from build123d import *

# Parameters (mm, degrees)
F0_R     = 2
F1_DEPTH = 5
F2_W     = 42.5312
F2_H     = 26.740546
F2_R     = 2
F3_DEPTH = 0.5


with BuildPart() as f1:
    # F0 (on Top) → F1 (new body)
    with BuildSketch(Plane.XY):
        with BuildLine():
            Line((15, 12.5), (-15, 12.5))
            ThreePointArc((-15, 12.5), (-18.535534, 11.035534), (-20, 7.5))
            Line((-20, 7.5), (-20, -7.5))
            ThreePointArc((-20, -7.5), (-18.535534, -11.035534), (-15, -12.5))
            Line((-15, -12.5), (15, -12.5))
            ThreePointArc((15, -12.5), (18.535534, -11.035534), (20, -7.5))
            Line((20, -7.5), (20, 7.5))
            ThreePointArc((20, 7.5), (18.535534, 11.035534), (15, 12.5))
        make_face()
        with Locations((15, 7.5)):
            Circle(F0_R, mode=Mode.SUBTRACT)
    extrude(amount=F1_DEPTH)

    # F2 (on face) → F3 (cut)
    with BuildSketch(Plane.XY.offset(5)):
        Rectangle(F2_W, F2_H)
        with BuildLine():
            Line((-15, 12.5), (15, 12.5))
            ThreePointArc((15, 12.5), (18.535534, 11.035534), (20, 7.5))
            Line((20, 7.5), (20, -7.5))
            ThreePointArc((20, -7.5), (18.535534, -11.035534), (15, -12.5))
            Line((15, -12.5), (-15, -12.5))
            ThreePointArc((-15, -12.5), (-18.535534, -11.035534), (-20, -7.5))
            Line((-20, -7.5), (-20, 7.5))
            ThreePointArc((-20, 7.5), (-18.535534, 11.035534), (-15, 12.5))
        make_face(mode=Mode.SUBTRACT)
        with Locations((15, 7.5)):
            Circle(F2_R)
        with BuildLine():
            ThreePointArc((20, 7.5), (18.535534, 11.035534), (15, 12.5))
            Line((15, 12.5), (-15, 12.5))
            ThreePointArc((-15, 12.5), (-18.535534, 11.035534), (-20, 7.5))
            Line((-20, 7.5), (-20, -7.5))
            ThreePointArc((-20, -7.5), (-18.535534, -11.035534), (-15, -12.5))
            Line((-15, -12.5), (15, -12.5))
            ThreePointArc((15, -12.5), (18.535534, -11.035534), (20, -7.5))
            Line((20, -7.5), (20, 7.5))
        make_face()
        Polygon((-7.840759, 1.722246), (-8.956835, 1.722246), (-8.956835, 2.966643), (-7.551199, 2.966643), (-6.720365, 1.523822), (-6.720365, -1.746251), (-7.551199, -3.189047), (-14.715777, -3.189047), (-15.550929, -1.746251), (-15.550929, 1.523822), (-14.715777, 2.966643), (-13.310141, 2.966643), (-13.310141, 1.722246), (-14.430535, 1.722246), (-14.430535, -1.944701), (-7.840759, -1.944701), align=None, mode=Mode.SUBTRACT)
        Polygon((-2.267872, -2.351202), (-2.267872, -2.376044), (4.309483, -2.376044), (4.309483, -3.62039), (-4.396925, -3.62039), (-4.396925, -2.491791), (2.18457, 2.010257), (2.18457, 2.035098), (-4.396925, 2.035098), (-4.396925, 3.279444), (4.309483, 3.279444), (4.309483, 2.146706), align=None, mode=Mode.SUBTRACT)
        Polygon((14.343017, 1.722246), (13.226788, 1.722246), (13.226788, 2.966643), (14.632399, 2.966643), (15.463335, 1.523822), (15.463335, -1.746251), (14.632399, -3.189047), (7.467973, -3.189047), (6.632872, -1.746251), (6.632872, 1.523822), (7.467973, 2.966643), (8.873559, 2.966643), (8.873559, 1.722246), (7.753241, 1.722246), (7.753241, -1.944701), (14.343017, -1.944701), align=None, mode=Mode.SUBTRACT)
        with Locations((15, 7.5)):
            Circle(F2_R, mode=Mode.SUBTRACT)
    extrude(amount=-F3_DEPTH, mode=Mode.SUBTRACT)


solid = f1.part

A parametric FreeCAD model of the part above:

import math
import FreeCAD as App
import Part
import Sketcher
from FreeCAD import Vector
Q = App.Units.Quantity

doc = App.newDocument("Part")
params = doc.addObject("Spreadsheet::Sheet", "Params")
for row, (alias, value) in enumerate([
    ("sketch1_diameter", "4 mm"),
    ("sketch1_radius", "5 mm"),
    ("sketch1_width", "30 mm"),
    ("sketch1_height", "15 mm"),
    ("pad1_length", "5 mm"),
    ("sketch2_diameter", "4 mm"),
    ("pocket1_length", "0.5 mm"),
], start=1):
    params.set(f"A{row}", alias)
    params.set(f"B{row}", "=" + value)
    params.setAlias(f"B{row}", alias)

body = doc.addObject("PartDesign::Body", "Body")

# Sketch on XY plane
sketch1 = body.newObject("Sketcher::SketchObject", "Sketch")
sketch1.AttachmentSupport = (doc.getObject("XY_Plane"), [""])
sketch1.MapMode = "FlatFace"
sketch1.addGeometry([
    Part.LineSegment(Vector(15, 12.5, 0), Vector(-15, 12.5, 0)),  # 0
    Part.ArcOfCircle(Part.Circle(Vector(-15, 7.5, 0), Vector(0, 0, 1), 5), math.radians(90), math.radians(180)),  # 1
    Part.LineSegment(Vector(-20, 7.5, 0), Vector(-20, -7.5, 0)),  # 2
    Part.ArcOfCircle(Part.Circle(Vector(-15, -7.5, 0), Vector(0, 0, 1), 5), math.radians(180), math.radians(270)),  # 3
    Part.LineSegment(Vector(-15, -12.5, 0), Vector(15, -12.5, 0)),  # 4
    Part.ArcOfCircle(Part.Circle(Vector(15, -7.5, 0), Vector(0, 0, 1), 5), math.radians(-90), math.radians(0)),  # 5
    Part.LineSegment(Vector(20, -7.5, 0), Vector(20, 7.5, 0)),  # 6
    Part.ArcOfCircle(Part.Circle(Vector(15, 7.5, 0), Vector(0, 0, 1), 5), math.radians(0), math.radians(90)),  # 7
    Part.Circle(Vector(15, 7.5, 0), Vector(0, 0, 1), 2),  # 8
], False)
sketch1.addConstraint([
    Sketcher.Constraint("Tangent", 0, 2, 1, 1),
    Sketcher.Constraint("Tangent", 1, 2, 2, 1),
    Sketcher.Constraint("Tangent", 2, 2, 3, 1),
    Sketcher.Constraint("Tangent", 3, 2, 4, 1),
    Sketcher.Constraint("Tangent", 4, 2, 5, 1),
    Sketcher.Constraint("Tangent", 5, 2, 6, 1),
    Sketcher.Constraint("Tangent", 6, 2, 7, 1),
    Sketcher.Constraint("Tangent", 7, 2, 0, 1),
    Sketcher.Constraint("Horizontal", 0),
    Sketcher.Constraint("Vertical", 2),
    Sketcher.Constraint("Horizontal", 4),
    Sketcher.Constraint("Vertical", 6),
    Sketcher.Constraint("Coincident", 8, 3, 7, 3),
    Sketcher.Constraint("Equal", 1, 3),
    Sketcher.Constraint("Equal", 3, 5),
    Sketcher.Constraint("Equal", 5, 7),
    Sketcher.Constraint("Symmetric", 1, 3, 5, 3, -1, 1),
    Sketcher.Constraint("Diameter", 8, Q("4 mm")),
    Sketcher.Constraint("Radius", 1, Q("5 mm")),
    Sketcher.Constraint("DistanceX", 0, 2, 0, 1, Q("30 mm")),
    Sketcher.Constraint("DistanceY", 2, 2, 2, 1, Q("15 mm")),
])
sketch1.setExpression("Constraints[17]", "Params.sketch1_diameter")
sketch1.setExpression("Constraints[18]", "Params.sketch1_radius")
sketch1.setExpression("Constraints[19]", "Params.sketch1_width")
sketch1.setExpression("Constraints[20]", "Params.sketch1_height")
pad1 = body.newObject("PartDesign::Pad", "Pad")
pad1.Profile = sketch1
pad1.setExpression("Length", "Params.pad1_length")

# Sketch on XY plane
sketch2 = body.newObject("Sketcher::SketchObject", "Sketch001")
sketch2.AttachmentSupport = (doc.getObject("XY_Plane"), [""])
sketch2.MapMode = "FlatFace"
sketch2.AttachmentOffset = App.Placement(Vector(0, 0, 5), App.Rotation())
sketch2.addGeometry([
    Part.LineSegment(Vector(-21.266, 13.37, 0), Vector(-21.266, -13.37, 0)),  # 0
    Part.LineSegment(Vector(-21.266, -13.37, 0), Vector(21.266, -13.37, 0)),  # 1
    Part.LineSegment(Vector(21.266, -13.37, 0), Vector(21.266, 13.37, 0)),  # 2
    Part.LineSegment(Vector(21.266, 13.37, 0), Vector(-21.266, 13.37, 0)),  # 3
    Part.LineSegment(Vector(-7.841, -1.945, 0), Vector(-7.841, 1.722, 0)),  # 4
    Part.LineSegment(Vector(-7.841, 1.722, 0), Vector(-8.957, 1.722, 0)),  # 5
    Part.LineSegment(Vector(-8.957, 1.722, 0), Vector(-8.957, 2.967, 0)),  # 6
    Part.LineSegment(Vector(-8.957, 2.967, 0), Vector(-7.551, 2.967, 0)),  # 7
    Part.LineSegment(Vector(-7.551, 2.967, 0), Vector(-6.72, 1.524, 0)),  # 8
    Part.LineSegment(Vector(-6.72, 1.524, 0), Vector(-6.72, -1.746, 0)),  # 9
    Part.LineSegment(Vector(-6.72, -1.746, 0), Vector(-7.551, -3.189, 0)),  # 10
    Part.LineSegment(Vector(-7.551, -3.189, 0), Vector(-14.716, -3.189, 0)),  # 11
    Part.LineSegment(Vector(-14.716, -3.189, 0), Vector(-15.551, -1.746, 0)),  # 12
    Part.LineSegment(Vector(-15.551, -1.746, 0), Vector(-15.551, 1.524, 0)),  # 13
    Part.LineSegment(Vector(-15.551, 1.524, 0), Vector(-14.716, 2.967, 0)),  # 14
    Part.LineSegment(Vector(-14.716, 2.967, 0), Vector(-13.31, 2.967, 0)),  # 15
    Part.LineSegment(Vector(-13.31, 2.967, 0), Vector(-13.31, 1.722, 0)),  # 16
    Part.LineSegment(Vector(-13.31, 1.722, 0), Vector(-14.431, 1.722, 0)),  # 17
    Part.LineSegment(Vector(-14.431, 1.722, 0), Vector(-14.431, -1.945, 0)),  # 18
    Part.LineSegment(Vector(-14.431, -1.945, 0), Vector(-7.841, -1.945, 0)),  # 19
    Part.LineSegment(Vector(4.309, 2.147, 0), Vector(-2.268, -2.351, 0)),  # 20
    Part.LineSegment(Vector(-2.268, -2.351, 0), Vector(-2.268, -2.376, 0)),  # 21
    Part.LineSegment(Vector(-2.268, -2.376, 0), Vector(4.309, -2.376, 0)),  # 22
    Part.LineSegment(Vector(4.309, -2.376, 0), Vector(4.309, -3.62, 0)),  # 23
    Part.LineSegment(Vector(4.309, -3.62, 0), Vector(-4.397, -3.62, 0)),  # 24
    Part.LineSegment(Vector(-4.397, -3.62, 0), Vector(-4.397, -2.492, 0)),  # 25
    Part.LineSegment(Vector(-4.397, -2.492, 0), Vector(2.185, 2.01, 0)),  # 26
    Part.LineSegment(Vector(2.185, 2.01, 0), Vector(2.185, 2.035, 0)),  # 27
    Part.LineSegment(Vector(2.185, 2.035, 0), Vector(-4.397, 2.035, 0)),  # 28
    Part.LineSegment(Vector(-4.397, 2.035, 0), Vector(-4.397, 3.279, 0)),  # 29
    Part.LineSegment(Vector(-4.397, 3.279, 0), Vector(4.309, 3.279, 0)),  # 30
    Part.LineSegment(Vector(4.309, 3.279, 0), Vector(4.309, 2.147, 0)),  # 31
    Part.LineSegment(Vector(14.343, -1.945, 0), Vector(14.343, 1.722, 0)),  # 32
    Part.LineSegment(Vector(14.343, 1.722, 0), Vector(13.227, 1.722, 0)),  # 33
    Part.LineSegment(Vector(13.227, 1.722, 0), Vector(13.227, 2.967, 0)),  # 34
    Part.LineSegment(Vector(13.227, 2.967, 0), Vector(14.632, 2.967, 0)),  # 35
    Part.LineSegment(Vector(14.632, 2.967, 0), Vector(15.463, 1.524, 0)),  # 36
    Part.LineSegment(Vector(15.463, 1.524, 0), Vector(15.463, -1.746, 0)),  # 37
    Part.LineSegment(Vector(15.463, -1.746, 0), Vector(14.632, -3.189, 0)),  # 38
    Part.LineSegment(Vector(14.632, -3.189, 0), Vector(7.468, -3.189, 0)),  # 39
    Part.LineSegment(Vector(7.468, -3.189, 0), Vector(6.633, -1.746, 0)),  # 40
    Part.LineSegment(Vector(6.633, -1.746, 0), Vector(6.633, 1.524, 0)),  # 41
    Part.LineSegment(Vector(6.633, 1.524, 0), Vector(7.468, 2.967, 0)),  # 42
    Part.LineSegment(Vector(7.468, 2.967, 0), Vector(8.874, 2.967, 0)),  # 43
    Part.LineSegment(Vector(8.874, 2.967, 0), Vector(8.874, 1.722, 0)),  # 44
    Part.LineSegment(Vector(8.874, 1.722, 0), Vector(7.753, 1.722, 0)),  # 45
    Part.LineSegment(Vector(7.753, 1.722, 0), Vector(7.753, -1.945, 0)),  # 46
    Part.LineSegment(Vector(7.753, -1.945, 0), Vector(14.343, -1.945, 0)),  # 47
    Part.Circle(Vector(15, 7.5, 0), Vector(0, 0, 1), 2),  # 48
], False)
sketch2.addConstraint([
    Sketcher.Constraint("Coincident", 0, 2, 1, 1),
    Sketcher.Constraint("Coincident", 1, 2, 2, 1),
    Sketcher.Constraint("Coincident", 2, 2, 3, 1),
    Sketcher.Constraint("Coincident", 3, 2, 0, 1),
    Sketcher.Constraint("Coincident", 4, 2, 5, 1),
    Sketcher.Constraint("Coincident", 5, 2, 6, 1),
    Sketcher.Constraint("Coincident", 6, 2, 7, 1),
    Sketcher.Constraint("Coincident", 7, 2, 8, 1),
    Sketcher.Constraint("Coincident", 8, 2, 9, 1),
    Sketcher.Constraint("Coincident", 9, 2, 10, 1),
    Sketcher.Constraint("Coincident", 10, 2, 11, 1),
    Sketcher.Constraint("Coincident", 11, 2, 12, 1),
    Sketcher.Constraint("Coincident", 12, 2, 13, 1),
    Sketcher.Constraint("Coincident", 13, 2, 14, 1),
    Sketcher.Constraint("Coincident", 14, 2, 15, 1),
    Sketcher.Constraint("Coincident", 15, 2, 16, 1),
    Sketcher.Constraint("Coincident", 16, 2, 17, 1),
    Sketcher.Constraint("Coincident", 17, 2, 18, 1),
    Sketcher.Constraint("Coincident", 18, 2, 19, 1),
    Sketcher.Constraint("Coincident", 19, 2, 4, 1),
    Sketcher.Constraint("Coincident", 20, 2, 21, 1),
    Sketcher.Constraint("Coincident", 21, 2, 22, 1),
    Sketcher.Constraint("Coincident", 22, 2, 23, 1),
    Sketcher.Constraint("Coincident", 23, 2, 24, 1),
    Sketcher.Constraint("Coincident", 24, 2, 25, 1),
    Sketcher.Constraint("Coincident", 25, 2, 26, 1),
    Sketcher.Constraint("Coincident", 26, 2, 27, 1),
    Sketcher.Constraint("Coincident", 27, 2, 28, 1),
    Sketcher.Constraint("Coincident", 28, 2, 29, 1),
    Sketcher.Constraint("Coincident", 29, 2, 30, 1),
    Sketcher.Constraint("Coincident", 30, 2, 31, 1),
    Sketcher.Constraint("Coincident", 31, 2, 20, 1),
    Sketcher.Constraint("Coincident", 32, 2, 33, 1),
    Sketcher.Constraint("Coincident", 33, 2, 34, 1),
    Sketcher.Constraint("Coincident", 34, 2, 35, 1),
    Sketcher.Constraint("Coincident", 35, 2, 36, 1),
    Sketcher.Constraint("Coincident", 36, 2, 37, 1),
    Sketcher.Constraint("Coincident", 37, 2, 38, 1),
    Sketcher.Constraint("Coincident", 38, 2, 39, 1),
    Sketcher.Constraint("Coincident", 39, 2, 40, 1),
    Sketcher.Constraint("Coincident", 40, 2, 41, 1),
    Sketcher.Constraint("Coincident", 41, 2, 42, 1),
    Sketcher.Constraint("Coincident", 42, 2, 43, 1),
    Sketcher.Constraint("Coincident", 43, 2, 44, 1),
    Sketcher.Constraint("Coincident", 44, 2, 45, 1),
    Sketcher.Constraint("Coincident", 45, 2, 46, 1),
    Sketcher.Constraint("Coincident", 46, 2, 47, 1),
    Sketcher.Constraint("Coincident", 47, 2, 32, 1),
    Sketcher.Constraint("Vertical", 0),
    Sketcher.Constraint("Horizontal", 1),
    Sketcher.Constraint("Vertical", 2),
    Sketcher.Constraint("Horizontal", 3),
    Sketcher.Constraint("Vertical", 4),
    Sketcher.Constraint("Horizontal", 5),
    Sketcher.Constraint("Vertical", 6),
    Sketcher.Constraint("Horizontal", 7),
    Sketcher.Constraint("Vertical", 9),
    Sketcher.Constraint("Horizontal", 11),
    Sketcher.Constraint("Vertical", 13),
    Sketcher.Constraint("Horizontal", 15),
    Sketcher.Constraint("Vertical", 16),
    Sketcher.Constraint("Horizontal", 17),
    Sketcher.Constraint("Vertical", 18),
    Sketcher.Constraint("Horizontal", 19),
    Sketcher.Constraint("Vertical", 21),
    Sketcher.Constraint("Horizontal", 22),
    Sketcher.Constraint("Vertical", 23),
    Sketcher.Constraint("Horizontal", 24),
    Sketcher.Constraint("Vertical", 25),
    Sketcher.Constraint("Vertical", 27),
    Sketcher.Constraint("Horizontal", 28),
    Sketcher.Constraint("Vertical", 29),
    Sketcher.Constraint("Horizontal", 30),
    Sketcher.Constraint("Vertical", 31),
    Sketcher.Constraint("Vertical", 32),
    Sketcher.Constraint("Horizontal", 33),
    Sketcher.Constraint("Vertical", 34),
    Sketcher.Constraint("Horizontal", 35),
    Sketcher.Constraint("Vertical", 37),
    Sketcher.Constraint("Horizontal", 39),
    Sketcher.Constraint("Vertical", 41),
    Sketcher.Constraint("Horizontal", 43),
    Sketcher.Constraint("Vertical", 44),
    Sketcher.Constraint("Horizontal", 45),
    Sketcher.Constraint("Vertical", 46),
    Sketcher.Constraint("Horizontal", 47),
    Sketcher.Constraint("Symmetric", 0, 2, 2, 2, -1, 1),
    Sketcher.Constraint("Horizontal", 9, 2, 12, 2),
    Sketcher.Constraint("Horizontal", 8, 2, 13, 2),
    Sketcher.Constraint("Horizontal", 7, 2, 14, 2),
    Sketcher.Constraint("Horizontal", 5, 2, 16, 2),
    Sketcher.Constraint("Horizontal", 17, 2, 32, 2),
    Sketcher.Constraint("Horizontal", 15, 2, 34, 2),
    Sketcher.Constraint("Horizontal", 13, 2, 36, 2),
    Sketcher.Constraint("Horizontal", 12, 2, 37, 2),
    Sketcher.Constraint("Horizontal", 11, 2, 38, 2),
    Sketcher.Constraint("Horizontal", 37, 2, 40, 2),
    Sketcher.Constraint("Horizontal", 36, 2, 41, 2),
    Sketcher.Constraint("Horizontal", 35, 2, 42, 2),
    Sketcher.Constraint("Horizontal", 33, 2, 44, 2),
    Sketcher.Constraint("Horizontal", 19, 2, 46, 2),
    Sketcher.Constraint("Vertical", 7, 2, 10, 2),
    Sketcher.Constraint("Vertical", 11, 2, 14, 2),
    Sketcher.Constraint("Vertical", 25, 2, 28, 2),
    Sketcher.Constraint("Vertical", 23, 2, 30, 2),
    Sketcher.Constraint("Vertical", 35, 2, 38, 2),
    Sketcher.Constraint("Vertical", 39, 2, 42, 2),
    Sketcher.Constraint("Equal", 7, 15),
    Sketcher.Constraint("Equal", 19, 47),
    Sketcher.Constraint("Equal", 21, 27),
    Sketcher.Constraint("Equal", 23, 29),
    Sketcher.Constraint("Diameter", 48, Q("4 mm")),
    Sketcher.Constraint("DistanceX", -1, 1, 48, 3, Q("15 mm")),
    Sketcher.Constraint("DistanceY", -1, 1, 48, 3, Q("7.5 mm")),
    Sketcher.Constraint("DistanceX", 1, 1, 1, 2, Q("42.5312 mm")),
    Sketcher.Constraint("DistanceY", 25, 1, 25, 2, Q("1.128599 mm")),
    Sketcher.Constraint("DistanceX", 33, 2, 33, 1, Q("1.116229 mm")),
    Sketcher.Constraint("DistanceX", 35, 1, 35, 2, Q("1.405611 mm")),
    Sketcher.Constraint("DistanceX", 45, 2, 45, 1, Q("1.120318 mm")),
    Sketcher.Constraint("DistanceY", 27, 1, 27, 2, Q("0.024841 mm")),
    Sketcher.Constraint("DistanceX", 7, 2, -1, 1, Q("7.551199 mm")),
    Sketcher.Constraint("DistanceY", 18, 2, -1, 1, Q("1.944701 mm")),
    Sketcher.Constraint("DistanceY", 20, 2, -1, 1, Q("2.351202 mm")),
    Sketcher.Constraint("DistanceY", -1, 1, 27, 2, Q("2.035098 mm")),
    Sketcher.Constraint("DistanceX", -1, 1, 35, 2, Q("14.632399 mm")),
    Sketcher.Constraint("DistanceY", 7, 2, 29, 2, Q("0.312801 mm")),
    Sketcher.Constraint("DistanceX", 40, 2, 39, 2, Q("0.835101 mm")),
    Sketcher.Constraint("Distance", 26, Q("7.97399 mm")),
    Sketcher.Constraint("Distance", 36, Q("1.664989 mm")),
    Sketcher.Constraint("Distance", 40, Q("1.667049 mm")),
    Sketcher.Constraint("Distance", 42, Q("1.667071 mm")),
    Sketcher.Constraint("DistanceX", 5, 2, 5, 1, Q("1.116076 mm")),
    Sketcher.Constraint("DistanceX", 7, 1, 7, 2, Q("1.405636 mm")),
    Sketcher.Constraint("DistanceX", 11, 2, 11, 1, Q("7.164578 mm")),
    Sketcher.Constraint("DistanceX", 17, 2, 17, 1, Q("1.120394 mm")),
    Sketcher.Constraint("DistanceX", 22, 1, 22, 2, Q("6.577355 mm")),
    Sketcher.Constraint("DistanceX", 24, 2, 24, 1, Q("8.706408 mm")),
    Sketcher.Constraint("DistanceX", 28, 2, 28, 1, Q("6.581495 mm")),
    Sketcher.Constraint("DistanceX", 39, 2, 39, 1, Q("7.164426 mm")),
    Sketcher.Constraint("DistanceY", 0, 2, 0, 1, Q("26.740546 mm")),
    Sketcher.Constraint("DistanceY", 4, 1, 4, 2, Q("3.666947 mm")),
    Sketcher.Constraint("DistanceY", 9, 2, 9, 1, Q("3.270073 mm")),
    Sketcher.Constraint("DistanceY", 31, 2, 31, 1, Q("1.132738 mm")),
    Sketcher.Constraint("DistanceX", 12, 2, -1, 1, Q("15.550929 mm")),
    Sketcher.Constraint("DistanceX", -1, 1, 26, 2, Q("2.18457 mm")),
    Sketcher.Constraint("DistanceX", 5, 2, 8, 2, Q("2.23647 mm")),
])
sketch2.setExpression("Constraints[111]", "Params.sketch2_diameter")
pocket1 = body.newObject("PartDesign::Pocket", "Pocket")
pocket1.Profile = sketch2
pocket1.setExpression("Length", "Params.pocket1_length")

doc.recompute()
